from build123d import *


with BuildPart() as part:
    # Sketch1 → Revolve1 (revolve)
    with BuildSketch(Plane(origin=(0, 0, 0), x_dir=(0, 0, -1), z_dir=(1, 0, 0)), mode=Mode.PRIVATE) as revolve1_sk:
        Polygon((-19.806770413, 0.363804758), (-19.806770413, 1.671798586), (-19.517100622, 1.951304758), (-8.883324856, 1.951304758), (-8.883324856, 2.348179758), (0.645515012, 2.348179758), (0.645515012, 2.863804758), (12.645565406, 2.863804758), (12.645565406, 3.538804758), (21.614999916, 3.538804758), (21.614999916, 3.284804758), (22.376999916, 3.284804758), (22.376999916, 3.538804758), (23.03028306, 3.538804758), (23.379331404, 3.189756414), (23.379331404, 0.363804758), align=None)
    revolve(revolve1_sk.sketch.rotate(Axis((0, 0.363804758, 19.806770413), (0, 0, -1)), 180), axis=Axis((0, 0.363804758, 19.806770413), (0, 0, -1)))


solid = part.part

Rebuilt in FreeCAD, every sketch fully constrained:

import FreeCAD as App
import Part
import Sketcher

V = App.Vector
Q = App.Units.Quantity


def add_polygon(sketch, points):
    """Adds a closed chain of lines whose ends are joined by coincident constraints."""
    first, n = sketch.GeometryCount, len(points)
    for a, b in zip(points, points[1:] + points[:1]):
        sketch.addGeometry(Part.LineSegment(App.Vector(*a, 0), App.Vector(*b, 0)), False)
    for i in range(n):
        sketch.addConstraint(Sketcher.Constraint("Coincident", first + i, 2, first + (i + 1) % n, 1))

doc = App.newDocument("Part")
params = doc.addObject("Spreadsheet::Sheet", "Params")
for row, (alias, value) in enumerate([
    ("sketch1_width", "0.01 in"),
    ("sketch1_height", "0.03 in"),
    ("sketch1_width2", "0.015625 in"),
    ("revolution_angle", "360 deg"),
], start=1):
    params.set(f"A{row}", alias)
    params.set(f"B{row}", "=" + value)
    params.setAlias(f"B{row}", alias)

body = doc.addObject("PartDesign::Body", "Body")

# Sketch on YZ plane
sketch1 = body.newObject("Sketcher::SketchObject", "Sketch")
sketch1.AttachmentSupport = (doc.getObject("YZ_Plane"), [""])
sketch1.MapMode = "FlatFace"
add_polygon(sketch1, [(1.67, 19.81), (0.36, 19.81), (0.36, -23.38), (3.19, -23.38), (3.54, -23.03), (3.54, -22.38), (3.28, -22.38), (3.28, -21.61), (3.54, -21.61), (3.54, -12.65), (2.86, -12.65), (2.86, -0.65), (2.35, -0.65), (2.35, 8.88), (1.95, 8.88), (1.95, 19.52)])  # lines 0-15
sketch1.addGeometry(Part.LineSegment(V(0.36, 19.81, 0), V(0.36, -23.38, 0)), True)  # axis
sketch1.addConstraint(Sketcher.Constraint("Horizontal", 0))
sketch1.addConstraint(Sketcher.Constraint("Vertical", 1))
sketch1.addConstraint(Sketcher.Constraint("Horizontal", 2))
sketch1.addConstraint(Sketcher.Constraint("Vertical", 4))
sketch1.addConstraint(Sketcher.Constraint("Horizontal", 5))
sketch1.addConstraint(Sketcher.Constraint("Vertical", 6))
sketch1.addConstraint(Sketcher.Constraint("Horizontal", 7))
sketch1.addConstraint(Sketcher.Constraint("Vertical", 8))
sketch1.addConstraint(Sketcher.Constraint("Horizontal", 9))
sketch1.addConstraint(Sketcher.Constraint("Vertical", 10))
sketch1.addConstraint(Sketcher.Constraint("Horizontal", 11))
sketch1.addConstraint(Sketcher.Constraint("Vertical", 12))
sketch1.addConstraint(Sketcher.Constraint("Horizontal", 13))
sketch1.addConstraint(Sketcher.Constraint("Vertical", 14))
sketch1.addConstraint(Sketcher.Constraint("Vertical", 16))
sketch1.addConstraint(Sketcher.Constraint("Coincident", 16, 1, 0, 2))
sketch1.addConstraint(Sketcher.Constraint("Horizontal", 2, 2, 16, 2))
sketch1.addConstraint(Sketcher.Constraint("Vertical", 4, 2, 7, 2))
sketch1.addConstraint(Sketcher.Constraint("Angle", 3, Q("45 deg")))
sketch1.addConstraint(Sketcher.Constraint("DistanceX", 5, 2, 5, 1, Q("0.01 in")))
sketch1.addConstraint(Sketcher.Constraint("DistanceY", 6, 1, 6, 2, Q("0.03 in")))
sketch1.addConstraint(Sketcher.Constraint("DistanceX", 13, 2, 13, 1, Q("0.015625 in")))
sketch1.addConstraint(Sketcher.Constraint("DistanceX", 11, 2, 11, 1, Q("0.0203002 in")))
sketch1.addConstraint(Sketcher.Constraint("DistanceX", 1, 2, 3, 2, Q("0.125 in")))
sketch1.addConstraint(Sketcher.Constraint("DistanceX", 11, 2, 8, 2, Q("0.046875 in")))
sketch1.addConstraint(Sketcher.Constraint("DistanceY", 1, 2, 1, 1, Q("43.186102 mm")))
sketch1.addConstraint(Sketcher.Constraint("DistanceX", 2, 1, 2, 2, Q("2.825952 mm")))
sketch1.addConstraint(Sketcher.Constraint("DistanceY", 10, 1, 10, 2, Q("12.00005 mm")))
sketch1.addConstraint(Sketcher.Constraint("DistanceY", 12, 1, 12, 2, Q("9.52884 mm")))
sketch1.addConstraint(Sketcher.Constraint("DistanceY", 4, 2, -1, 1, Q("22.377 mm")))
sketch1.addConstraint(Sketcher.Constraint("DistanceY", -1, 1, 14, 2, Q("19.517101 mm")))
sketch1.addConstraint(Sketcher.Constraint("DistanceX", -1, 1, 15, 2, Q("1.671799 mm")))
sketch1.addConstraint(Sketcher.Constraint("DistanceX", 0, 2, 0, 1, Q("1.307994 mm")))
sketch1.addConstraint(Sketcher.Constraint("DistanceY", 4, 1, 4, 2, Q("0.653283 mm")))
sketch1.addConstraint(Sketcher.Constraint("DistanceY", 8, 1, 8, 2, Q("8.969435 mm")))
sketch1.setExpression("Constraints[35]", "Params.sketch1_width")
sketch1.setExpression("Constraints[36]", "Params.sketch1_height")
sketch1.setExpression("Constraints[37]", "Params.sketch1_width2")
revolution = body.newObject("PartDesign::Revolution", "Revolution")
revolution.Profile = sketch1
revolution.ReferenceAxis = (sketch1, ["Axis0"])
revolution.setExpression("Angle", "Params.revolution_angle")

doc.recompute()
